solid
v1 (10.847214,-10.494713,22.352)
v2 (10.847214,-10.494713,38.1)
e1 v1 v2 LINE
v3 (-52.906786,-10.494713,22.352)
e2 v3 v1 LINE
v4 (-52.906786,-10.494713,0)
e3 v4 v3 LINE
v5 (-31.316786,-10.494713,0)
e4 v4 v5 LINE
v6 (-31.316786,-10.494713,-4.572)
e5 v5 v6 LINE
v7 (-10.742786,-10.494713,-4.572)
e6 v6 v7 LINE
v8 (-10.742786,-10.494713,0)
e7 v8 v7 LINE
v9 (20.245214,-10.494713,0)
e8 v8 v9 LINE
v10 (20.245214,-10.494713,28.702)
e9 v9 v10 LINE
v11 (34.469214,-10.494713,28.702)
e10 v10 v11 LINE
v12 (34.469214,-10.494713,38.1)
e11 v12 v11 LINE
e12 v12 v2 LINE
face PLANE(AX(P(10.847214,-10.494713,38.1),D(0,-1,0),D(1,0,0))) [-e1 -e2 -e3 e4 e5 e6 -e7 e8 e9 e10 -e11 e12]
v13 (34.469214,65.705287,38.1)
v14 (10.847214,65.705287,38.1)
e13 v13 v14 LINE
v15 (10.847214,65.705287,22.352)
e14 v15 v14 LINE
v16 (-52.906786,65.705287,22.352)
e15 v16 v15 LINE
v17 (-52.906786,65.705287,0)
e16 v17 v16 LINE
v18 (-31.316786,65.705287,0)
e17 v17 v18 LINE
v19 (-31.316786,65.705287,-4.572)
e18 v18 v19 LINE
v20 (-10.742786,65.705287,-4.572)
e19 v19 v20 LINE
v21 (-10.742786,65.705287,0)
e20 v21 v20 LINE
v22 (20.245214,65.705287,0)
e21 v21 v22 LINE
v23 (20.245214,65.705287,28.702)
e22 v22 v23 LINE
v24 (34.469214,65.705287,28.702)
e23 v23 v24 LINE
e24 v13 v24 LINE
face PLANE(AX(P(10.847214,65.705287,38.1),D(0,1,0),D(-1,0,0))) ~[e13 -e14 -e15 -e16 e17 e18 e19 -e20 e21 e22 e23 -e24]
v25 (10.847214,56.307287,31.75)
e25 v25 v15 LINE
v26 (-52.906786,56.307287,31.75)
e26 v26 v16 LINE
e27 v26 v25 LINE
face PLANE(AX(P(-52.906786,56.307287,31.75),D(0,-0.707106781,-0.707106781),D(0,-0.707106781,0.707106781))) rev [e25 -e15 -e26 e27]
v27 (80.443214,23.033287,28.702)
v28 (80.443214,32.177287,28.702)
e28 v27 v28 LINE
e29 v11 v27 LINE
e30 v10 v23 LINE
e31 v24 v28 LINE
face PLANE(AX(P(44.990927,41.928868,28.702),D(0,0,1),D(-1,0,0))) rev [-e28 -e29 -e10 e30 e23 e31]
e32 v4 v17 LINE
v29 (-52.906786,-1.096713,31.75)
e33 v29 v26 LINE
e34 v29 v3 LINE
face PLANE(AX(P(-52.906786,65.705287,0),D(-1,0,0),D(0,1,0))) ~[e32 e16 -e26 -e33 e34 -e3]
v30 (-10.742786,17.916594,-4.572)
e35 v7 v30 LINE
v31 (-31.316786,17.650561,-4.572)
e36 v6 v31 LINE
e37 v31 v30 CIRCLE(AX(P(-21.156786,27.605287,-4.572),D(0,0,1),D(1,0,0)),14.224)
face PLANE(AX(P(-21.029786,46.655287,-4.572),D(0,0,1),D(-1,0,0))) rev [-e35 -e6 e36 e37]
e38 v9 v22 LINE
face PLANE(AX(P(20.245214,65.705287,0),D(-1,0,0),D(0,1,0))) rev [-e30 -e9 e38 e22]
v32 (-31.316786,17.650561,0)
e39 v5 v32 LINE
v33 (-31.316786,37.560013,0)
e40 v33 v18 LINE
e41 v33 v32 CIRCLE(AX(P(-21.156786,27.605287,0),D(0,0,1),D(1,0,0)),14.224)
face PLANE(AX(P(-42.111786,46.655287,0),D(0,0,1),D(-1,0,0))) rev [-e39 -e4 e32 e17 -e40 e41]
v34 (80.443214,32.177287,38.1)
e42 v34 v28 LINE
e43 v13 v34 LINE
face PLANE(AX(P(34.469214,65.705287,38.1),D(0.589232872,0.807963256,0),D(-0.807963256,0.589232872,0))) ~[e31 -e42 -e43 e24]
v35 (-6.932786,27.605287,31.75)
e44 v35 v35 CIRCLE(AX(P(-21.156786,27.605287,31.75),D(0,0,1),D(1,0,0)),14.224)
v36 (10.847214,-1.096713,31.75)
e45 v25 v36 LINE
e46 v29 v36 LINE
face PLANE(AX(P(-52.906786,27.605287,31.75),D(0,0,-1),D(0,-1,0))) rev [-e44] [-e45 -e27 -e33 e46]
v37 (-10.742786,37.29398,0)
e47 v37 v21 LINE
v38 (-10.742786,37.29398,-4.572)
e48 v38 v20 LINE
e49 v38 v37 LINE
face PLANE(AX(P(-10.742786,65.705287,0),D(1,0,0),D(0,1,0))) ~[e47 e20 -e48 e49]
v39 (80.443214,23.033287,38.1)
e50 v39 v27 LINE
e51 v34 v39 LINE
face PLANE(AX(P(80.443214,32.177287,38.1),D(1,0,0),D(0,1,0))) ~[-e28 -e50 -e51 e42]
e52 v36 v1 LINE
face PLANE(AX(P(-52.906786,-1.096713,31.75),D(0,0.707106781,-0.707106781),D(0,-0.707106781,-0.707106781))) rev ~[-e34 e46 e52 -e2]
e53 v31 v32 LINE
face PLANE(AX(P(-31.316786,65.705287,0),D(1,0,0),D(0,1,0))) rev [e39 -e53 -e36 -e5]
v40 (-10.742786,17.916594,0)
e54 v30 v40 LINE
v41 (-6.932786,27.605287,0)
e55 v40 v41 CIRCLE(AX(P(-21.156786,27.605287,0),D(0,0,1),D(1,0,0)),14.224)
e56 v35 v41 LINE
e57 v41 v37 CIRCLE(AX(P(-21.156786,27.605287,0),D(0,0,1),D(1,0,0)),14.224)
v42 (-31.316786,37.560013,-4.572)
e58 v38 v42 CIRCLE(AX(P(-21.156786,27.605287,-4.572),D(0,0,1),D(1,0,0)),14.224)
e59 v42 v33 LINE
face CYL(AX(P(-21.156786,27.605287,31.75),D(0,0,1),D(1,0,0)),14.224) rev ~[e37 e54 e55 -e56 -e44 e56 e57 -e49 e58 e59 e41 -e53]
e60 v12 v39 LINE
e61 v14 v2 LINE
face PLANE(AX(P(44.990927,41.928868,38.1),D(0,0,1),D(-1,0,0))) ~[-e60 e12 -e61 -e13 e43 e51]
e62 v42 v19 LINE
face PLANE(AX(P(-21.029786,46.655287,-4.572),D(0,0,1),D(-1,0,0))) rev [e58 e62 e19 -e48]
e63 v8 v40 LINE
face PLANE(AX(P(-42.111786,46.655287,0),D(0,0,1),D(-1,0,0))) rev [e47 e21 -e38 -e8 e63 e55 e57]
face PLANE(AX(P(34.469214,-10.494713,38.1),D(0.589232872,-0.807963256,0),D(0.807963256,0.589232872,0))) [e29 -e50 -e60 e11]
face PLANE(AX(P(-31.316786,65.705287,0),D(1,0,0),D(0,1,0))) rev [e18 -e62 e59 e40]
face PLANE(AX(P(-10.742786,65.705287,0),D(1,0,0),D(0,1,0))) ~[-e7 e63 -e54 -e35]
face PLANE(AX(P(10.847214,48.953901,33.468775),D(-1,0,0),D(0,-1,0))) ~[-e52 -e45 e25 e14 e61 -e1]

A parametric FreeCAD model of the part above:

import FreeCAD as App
import Part
import Sketcher
Q = App.Units.Quantity

doc = App.newDocument("Part")
body = doc.addObject("PartDesign::Body", "Body")

sketch1 = doc.addObject("Sketcher::SketchObject", "Sketch")
body.addObject(sketch1)
sketch1.AttachmentSupport = (doc.XY_Plane, [""])
sketch1.MapMode = "FlatFace"
sketch1.addGeometry(Part.LineSegment(App.Vector(-31, 28, 0), App.Vector(-31, -10, 0)), False)
sketch1.addGeometry(Part.LineSegment(App.Vector(-31, -10, 0), App.Vector(-11, -10, 0)), False)
sketch1.addGeometry(Part.LineSegment(App.Vector(-11, -10, 0), App.Vector(-11, 28, 0)), False)
sketch1.addGeometry(Part.LineSegment(App.Vector(-11, 28, 0), App.Vector(-31, 28, 0)), False)
sketch1.addConstraint(Sketcher.Constraint("Coincident", 0, 2, 1, 1))
sketch1.addConstraint(Sketcher.Constraint("Coincident", 1, 2, 2, 1))
sketch1.addConstraint(Sketcher.Constraint("Coincident", 2, 2, 3, 1))
sketch1.addConstraint(Sketcher.Constraint("Coincident", 3, 2, 0, 1))
sketch1.addConstraint(Sketcher.Constraint("Vertical", 0))
sketch1.addConstraint(Sketcher.Constraint("Horizontal", 1))
sketch1.addConstraint(Sketcher.Constraint("Vertical", 2))
sketch1.addConstraint(Sketcher.Constraint("Horizontal", 3))
sketch1.addConstraint(Sketcher.Constraint("DistanceY", 0, 2, 0, 1, Q("1.5 in")))
sketch1.addConstraint(Sketcher.Constraint("DistanceX", 1, 1, 1, 2, Q("0.81 in")))
sketch1.addConstraint(Sketcher.Constraint("DistanceX", 0, 2, -1, 1, Q("31.316786 mm")))
sketch1.addConstraint(Sketcher.Constraint("DistanceY", 0, 2, -1, 1, Q("10.494713 mm")))
pad1 = doc.addObject("PartDesign::Pad", "Pad")
body.addObject(pad1)
pad1.Profile = sketch1
pad1.Length = Q("0.18 in")
pad1.Reversed = True

sketch2 = doc.addObject("Sketcher::SketchObject", "Sketch001")
body.addObject(sketch2)
sketch2.AttachmentSupport = (doc.XY_Plane, [""])
sketch2.MapMode = "FlatFace"
sketch2.addGeometry(Part.LineSegment(App.Vector(-53, 28, 0), App.Vector(-53, -10, 0)), False)
sketch2.addGeometry(Part.LineSegment(App.Vector(-53, -10, 0), App.Vector(20, -10, 0)), False)
sketch2.addGeometry(Part.LineSegment(App.Vector(20, -10, 0), App.Vector(20, 28, 0)), False)
sketch2.addGeometry(Part.LineSegment(App.Vector(20, 28, 0), App.Vector(-53, 28, 0)), False)
sketch2.addConstraint(Sketcher.Constraint("Coincident", 0, 2, 1, 1))
sketch2.addConstraint(Sketcher.Constraint("Coincident", 1, 2, 2, 1))
sketch2.addConstraint(Sketcher.Constraint("Coincident", 2, 2, 3, 1))
sketch2.addConstraint(Sketcher.Constraint("Coincident", 3, 2, 0, 1))
sketch2.addConstraint(Sketcher.Constraint("Vertical", 0))
sketch2.addConstraint(Sketcher.Constraint("Horizontal", 1))
sketch2.addConstraint(Sketcher.Constraint("Vertical", 2))
sketch2.addConstraint(Sketcher.Constraint("Horizontal", 3))
sketch2.addConstraint(Sketcher.Constraint("DistanceY", 0, 2, 0, 1, Q("1.5 in")))
sketch2.addConstraint(Sketcher.Constraint("DistanceX", 1, 1, 1, 2, Q("2.88 in")))
sketch2.addConstraint(Sketcher.Constraint("DistanceX", 0, 2, -1, 1, Q("52.906786 mm")))
sketch2.addConstraint(Sketcher.Constraint("DistanceY", 0, 2, -1, 1, Q("10.494713 mm")))
pad2 = doc.addObject("PartDesign::Pad", "Pad001")
body.addObject(pad2)
pad2.Profile = sketch2
pad2.Length = Q("1.5 in")

sketch3 = doc.addObject("Sketcher::SketchObject", "Sketch002")
body.addObject(sketch3)
sketch3.AttachmentSupport = (doc.XY_Plane, [""])
sketch3.MapMode = "FlatFace"
sketch3.AttachmentOffset = App.Placement(App.Vector(0, 0, 1.5 * 25.4), App.Rotation())
sketch3.addGeometry(Part.LineSegment(App.Vector(34.5, -10.5, 0), App.Vector(80.4, 23, 0)), False)
sketch3.addGeometry(Part.LineSegment(App.Vector(80.4, 23, 0), App.Vector(80.4, 27.6, 0)), False)
sketch3.addGeometry(Part.LineSegment(App.Vector(80.4, 27.6, 0), App.Vector(10.8, 27.6, 0)), False)
sketch3.addGeometry(Part.LineSegment(App.Vector(10.8, 27.6, 0), App.Vector(10.8, -10.5, 0)), False)
sketch3.addGeometry(Part.LineSegment(App.Vector(10.8, -10.5, 0), App.Vector(34.5, -10.5, 0)), False)
sketch3.addConstraint(Sketcher.Constraint("Coincident", 0, 2, 1, 1))
sketch3.addConstraint(Sketcher.Constraint("Coincident", 1, 2, 2, 1))
sketch3.addConstraint(Sketcher.Constraint("Coincident", 2, 2, 3, 1))
sketch3.addConstraint(Sketcher.Constraint("Coincident", 3, 2, 4, 1))
sketch3.addConstraint(Sketcher.Constraint("Coincident", 4, 2, 0, 1))
sketch3.addConstraint(Sketcher.Constraint("Vertical", 1))
sketch3.addConstraint(Sketcher.Constraint("Horizontal", 2))
sketch3.addConstraint(Sketcher.Constraint("Vertical", 3))
sketch3.addConstraint(Sketcher.Constraint("Horizontal", 4))
sketch3.addConstraint(Sketcher.Constraint("DistanceY", 3, 2, 3, 1, Q("1.5 in")))
sketch3.addConstraint(Sketcher.Constraint("DistanceX", 2, 2, 2, 1, Q("2.74 in")))
sketch3.addConstraint(Sketcher.Constraint("DistanceX", 4, 1, 4, 2, Q("0.93 in")))
sketch3.addConstraint(Sketcher.Constraint("DistanceY", 1, 1, 1, 2, Q("0.18 in")))
sketch3.addConstraint(Sketcher.Constraint("DistanceX", -1, 1, 0, 2, Q("80.443214 mm")))
sketch3.addConstraint(Sketcher.Constraint("DistanceY", -1, 1, 0, 2, Q("23.033287 mm")))
pad3 = doc.addObject("PartDesign::Pad", "Pad002")
body.addObject(pad3)
pad3.Profile = sketch3
pad3.Length = Q("0.37 in")
pad3.Reversed = True

sketch4 = doc.addObject("Sketcher::SketchObject", "Sketch003")
body.addObject(sketch4)
sketch4.AttachmentSupport = (doc.YZ_Plane, [""])
sketch4.MapMode = "FlatFace"
sketch4.AttachmentOffset = App.Placement(App.Vector(0, 0, -52.906786), App.Rotation())
sketch4.addGeometry(Part.LineSegment(App.Vector(28, 38, 0), App.Vector(28, 32, 0)), False)
sketch4.addGeometry(Part.LineSegment(App.Vector(28, 32, 0), App.Vector(-1, 32, 0)), False)
sketch4.addGeometry(Part.LineSegment(App.Vector(-1, 32, 0), App.Vector(-10, 22, 0)), False)
sketch4.addGeometry(Part.LineSegment(App.Vector(-10, 22, 0), App.Vector(-10, 38, 0)), False)
sketch4.addGeometry(Part.LineSegment(App.Vector(-10, 38, 0), App.Vector(28, 38, 0)), False)
sketch4.addConstraint(Sketcher.Constraint("Coincident", 0, 2, 1, 1))
sketch4.addConstraint(Sketcher.Constraint("Coincident", 1, 2, 2, 1))
sketch4.addConstraint(Sketcher.Constraint("Coincident", 2, 2, 3, 1))
sketch4.addConstraint(Sketcher.Constraint("Coincident", 3, 2, 4, 1))
sketch4.addConstraint(Sketcher.Constraint("Coincident", 4, 2, 0, 1))
sketch4.addConstraint(Sketcher.Constraint("Vertical", 0))
sketch4.addConstraint(Sketcher.Constraint("Horizontal", 1))
sketch4.addConstraint(Sketcher.Constraint("Vertical", 3))
sketch4.addConstraint(Sketcher.Constraint("Horizontal", 4))
sketch4.addConstraint(Sketcher.Constraint("DistanceX", 4, 1, 4, 2, Q("1.5 in")))
sketch4.addConstraint(Sketcher.Constraint("Angle", 2, Q("-135 deg")))
sketch4.addConstraint(Sketcher.Constraint("DistanceX", 1, 2, 1, 1, Q("1.13 in")))
sketch4.addConstraint(Sketcher.Constraint("DistanceY", 0, 2, 0, 1, Q("0.25 in")))
sketch4.addConstraint(Sketcher.Constraint("DistanceY", -1, 1, 3, 2, Q("1.5 in")))
sketch4.addConstraint(Sketcher.Constraint("DistanceX", -1, 1, 0, 2, Q("27.605287 mm")))
pocket1 = doc.addObject("PartDesign::Pocket", "Pocket")
body.addObject(pocket1)
pocket1.Profile = sketch4
pocket1.Length = Q("2.51 in")
pocket1.Reversed = True
body2 = doc.addObject("PartDesign::Body", "Body001")
doc.recompute()

body2.BaseFeature = body
doc.recompute()

mirroring = doc.addObject("Part::Mirroring", "Mirroring")
mirroring.Source = body
mirroring.Base = App.Vector(-3.450989, 27.605287, 18.946514)
mirroring.Normal = App.Vector(0, 1, 0)
body3 = doc.addObject("PartDesign::Body", "Body002")
body3.BaseFeature = mirroring
boolean = doc.addObject("PartDesign::Boolean", "Boolean")
body2.addObject(boolean)
boolean.Type = "Fuse"
boolean.addObjects([body3])
doc.recompute()

sketch5 = doc.addObject("Sketcher::SketchObject", "Sketch004")
body2.addObject(sketch5)
sketch5.AttachmentSupport = (doc.getObject("XY_Plane001"), [""])
sketch5.MapMode = "FlatFace"
sketch5.AttachmentOffset = App.Placement(App.Vector(0, 0, 1.25 * 25.4), App.Rotation())
sketch5.addGeometry(Part.Circle(App.Vector(-21, 28, 0), App.Vector(0, 0, 1), 14), False)
sketch5.addConstraint(Sketcher.Constraint("Diameter", 0, Q("1.12 in")))
sketch5.addConstraint(Sketcher.Constraint("DistanceX", 0, 3, -1, 1, Q("21.156786 mm")))
sketch5.addConstraint(Sketcher.Constraint("DistanceY", -1, 1, 0, 3, Q("27.605287 mm")))
pocket2 = doc.addObject("PartDesign::Pocket", "Pocket001")
body2.addObject(pocket2)
pocket2.Profile = sketch5
pocket2.Type = "ThroughAll"
mirroring.Visibility = False

doc.recompute()
